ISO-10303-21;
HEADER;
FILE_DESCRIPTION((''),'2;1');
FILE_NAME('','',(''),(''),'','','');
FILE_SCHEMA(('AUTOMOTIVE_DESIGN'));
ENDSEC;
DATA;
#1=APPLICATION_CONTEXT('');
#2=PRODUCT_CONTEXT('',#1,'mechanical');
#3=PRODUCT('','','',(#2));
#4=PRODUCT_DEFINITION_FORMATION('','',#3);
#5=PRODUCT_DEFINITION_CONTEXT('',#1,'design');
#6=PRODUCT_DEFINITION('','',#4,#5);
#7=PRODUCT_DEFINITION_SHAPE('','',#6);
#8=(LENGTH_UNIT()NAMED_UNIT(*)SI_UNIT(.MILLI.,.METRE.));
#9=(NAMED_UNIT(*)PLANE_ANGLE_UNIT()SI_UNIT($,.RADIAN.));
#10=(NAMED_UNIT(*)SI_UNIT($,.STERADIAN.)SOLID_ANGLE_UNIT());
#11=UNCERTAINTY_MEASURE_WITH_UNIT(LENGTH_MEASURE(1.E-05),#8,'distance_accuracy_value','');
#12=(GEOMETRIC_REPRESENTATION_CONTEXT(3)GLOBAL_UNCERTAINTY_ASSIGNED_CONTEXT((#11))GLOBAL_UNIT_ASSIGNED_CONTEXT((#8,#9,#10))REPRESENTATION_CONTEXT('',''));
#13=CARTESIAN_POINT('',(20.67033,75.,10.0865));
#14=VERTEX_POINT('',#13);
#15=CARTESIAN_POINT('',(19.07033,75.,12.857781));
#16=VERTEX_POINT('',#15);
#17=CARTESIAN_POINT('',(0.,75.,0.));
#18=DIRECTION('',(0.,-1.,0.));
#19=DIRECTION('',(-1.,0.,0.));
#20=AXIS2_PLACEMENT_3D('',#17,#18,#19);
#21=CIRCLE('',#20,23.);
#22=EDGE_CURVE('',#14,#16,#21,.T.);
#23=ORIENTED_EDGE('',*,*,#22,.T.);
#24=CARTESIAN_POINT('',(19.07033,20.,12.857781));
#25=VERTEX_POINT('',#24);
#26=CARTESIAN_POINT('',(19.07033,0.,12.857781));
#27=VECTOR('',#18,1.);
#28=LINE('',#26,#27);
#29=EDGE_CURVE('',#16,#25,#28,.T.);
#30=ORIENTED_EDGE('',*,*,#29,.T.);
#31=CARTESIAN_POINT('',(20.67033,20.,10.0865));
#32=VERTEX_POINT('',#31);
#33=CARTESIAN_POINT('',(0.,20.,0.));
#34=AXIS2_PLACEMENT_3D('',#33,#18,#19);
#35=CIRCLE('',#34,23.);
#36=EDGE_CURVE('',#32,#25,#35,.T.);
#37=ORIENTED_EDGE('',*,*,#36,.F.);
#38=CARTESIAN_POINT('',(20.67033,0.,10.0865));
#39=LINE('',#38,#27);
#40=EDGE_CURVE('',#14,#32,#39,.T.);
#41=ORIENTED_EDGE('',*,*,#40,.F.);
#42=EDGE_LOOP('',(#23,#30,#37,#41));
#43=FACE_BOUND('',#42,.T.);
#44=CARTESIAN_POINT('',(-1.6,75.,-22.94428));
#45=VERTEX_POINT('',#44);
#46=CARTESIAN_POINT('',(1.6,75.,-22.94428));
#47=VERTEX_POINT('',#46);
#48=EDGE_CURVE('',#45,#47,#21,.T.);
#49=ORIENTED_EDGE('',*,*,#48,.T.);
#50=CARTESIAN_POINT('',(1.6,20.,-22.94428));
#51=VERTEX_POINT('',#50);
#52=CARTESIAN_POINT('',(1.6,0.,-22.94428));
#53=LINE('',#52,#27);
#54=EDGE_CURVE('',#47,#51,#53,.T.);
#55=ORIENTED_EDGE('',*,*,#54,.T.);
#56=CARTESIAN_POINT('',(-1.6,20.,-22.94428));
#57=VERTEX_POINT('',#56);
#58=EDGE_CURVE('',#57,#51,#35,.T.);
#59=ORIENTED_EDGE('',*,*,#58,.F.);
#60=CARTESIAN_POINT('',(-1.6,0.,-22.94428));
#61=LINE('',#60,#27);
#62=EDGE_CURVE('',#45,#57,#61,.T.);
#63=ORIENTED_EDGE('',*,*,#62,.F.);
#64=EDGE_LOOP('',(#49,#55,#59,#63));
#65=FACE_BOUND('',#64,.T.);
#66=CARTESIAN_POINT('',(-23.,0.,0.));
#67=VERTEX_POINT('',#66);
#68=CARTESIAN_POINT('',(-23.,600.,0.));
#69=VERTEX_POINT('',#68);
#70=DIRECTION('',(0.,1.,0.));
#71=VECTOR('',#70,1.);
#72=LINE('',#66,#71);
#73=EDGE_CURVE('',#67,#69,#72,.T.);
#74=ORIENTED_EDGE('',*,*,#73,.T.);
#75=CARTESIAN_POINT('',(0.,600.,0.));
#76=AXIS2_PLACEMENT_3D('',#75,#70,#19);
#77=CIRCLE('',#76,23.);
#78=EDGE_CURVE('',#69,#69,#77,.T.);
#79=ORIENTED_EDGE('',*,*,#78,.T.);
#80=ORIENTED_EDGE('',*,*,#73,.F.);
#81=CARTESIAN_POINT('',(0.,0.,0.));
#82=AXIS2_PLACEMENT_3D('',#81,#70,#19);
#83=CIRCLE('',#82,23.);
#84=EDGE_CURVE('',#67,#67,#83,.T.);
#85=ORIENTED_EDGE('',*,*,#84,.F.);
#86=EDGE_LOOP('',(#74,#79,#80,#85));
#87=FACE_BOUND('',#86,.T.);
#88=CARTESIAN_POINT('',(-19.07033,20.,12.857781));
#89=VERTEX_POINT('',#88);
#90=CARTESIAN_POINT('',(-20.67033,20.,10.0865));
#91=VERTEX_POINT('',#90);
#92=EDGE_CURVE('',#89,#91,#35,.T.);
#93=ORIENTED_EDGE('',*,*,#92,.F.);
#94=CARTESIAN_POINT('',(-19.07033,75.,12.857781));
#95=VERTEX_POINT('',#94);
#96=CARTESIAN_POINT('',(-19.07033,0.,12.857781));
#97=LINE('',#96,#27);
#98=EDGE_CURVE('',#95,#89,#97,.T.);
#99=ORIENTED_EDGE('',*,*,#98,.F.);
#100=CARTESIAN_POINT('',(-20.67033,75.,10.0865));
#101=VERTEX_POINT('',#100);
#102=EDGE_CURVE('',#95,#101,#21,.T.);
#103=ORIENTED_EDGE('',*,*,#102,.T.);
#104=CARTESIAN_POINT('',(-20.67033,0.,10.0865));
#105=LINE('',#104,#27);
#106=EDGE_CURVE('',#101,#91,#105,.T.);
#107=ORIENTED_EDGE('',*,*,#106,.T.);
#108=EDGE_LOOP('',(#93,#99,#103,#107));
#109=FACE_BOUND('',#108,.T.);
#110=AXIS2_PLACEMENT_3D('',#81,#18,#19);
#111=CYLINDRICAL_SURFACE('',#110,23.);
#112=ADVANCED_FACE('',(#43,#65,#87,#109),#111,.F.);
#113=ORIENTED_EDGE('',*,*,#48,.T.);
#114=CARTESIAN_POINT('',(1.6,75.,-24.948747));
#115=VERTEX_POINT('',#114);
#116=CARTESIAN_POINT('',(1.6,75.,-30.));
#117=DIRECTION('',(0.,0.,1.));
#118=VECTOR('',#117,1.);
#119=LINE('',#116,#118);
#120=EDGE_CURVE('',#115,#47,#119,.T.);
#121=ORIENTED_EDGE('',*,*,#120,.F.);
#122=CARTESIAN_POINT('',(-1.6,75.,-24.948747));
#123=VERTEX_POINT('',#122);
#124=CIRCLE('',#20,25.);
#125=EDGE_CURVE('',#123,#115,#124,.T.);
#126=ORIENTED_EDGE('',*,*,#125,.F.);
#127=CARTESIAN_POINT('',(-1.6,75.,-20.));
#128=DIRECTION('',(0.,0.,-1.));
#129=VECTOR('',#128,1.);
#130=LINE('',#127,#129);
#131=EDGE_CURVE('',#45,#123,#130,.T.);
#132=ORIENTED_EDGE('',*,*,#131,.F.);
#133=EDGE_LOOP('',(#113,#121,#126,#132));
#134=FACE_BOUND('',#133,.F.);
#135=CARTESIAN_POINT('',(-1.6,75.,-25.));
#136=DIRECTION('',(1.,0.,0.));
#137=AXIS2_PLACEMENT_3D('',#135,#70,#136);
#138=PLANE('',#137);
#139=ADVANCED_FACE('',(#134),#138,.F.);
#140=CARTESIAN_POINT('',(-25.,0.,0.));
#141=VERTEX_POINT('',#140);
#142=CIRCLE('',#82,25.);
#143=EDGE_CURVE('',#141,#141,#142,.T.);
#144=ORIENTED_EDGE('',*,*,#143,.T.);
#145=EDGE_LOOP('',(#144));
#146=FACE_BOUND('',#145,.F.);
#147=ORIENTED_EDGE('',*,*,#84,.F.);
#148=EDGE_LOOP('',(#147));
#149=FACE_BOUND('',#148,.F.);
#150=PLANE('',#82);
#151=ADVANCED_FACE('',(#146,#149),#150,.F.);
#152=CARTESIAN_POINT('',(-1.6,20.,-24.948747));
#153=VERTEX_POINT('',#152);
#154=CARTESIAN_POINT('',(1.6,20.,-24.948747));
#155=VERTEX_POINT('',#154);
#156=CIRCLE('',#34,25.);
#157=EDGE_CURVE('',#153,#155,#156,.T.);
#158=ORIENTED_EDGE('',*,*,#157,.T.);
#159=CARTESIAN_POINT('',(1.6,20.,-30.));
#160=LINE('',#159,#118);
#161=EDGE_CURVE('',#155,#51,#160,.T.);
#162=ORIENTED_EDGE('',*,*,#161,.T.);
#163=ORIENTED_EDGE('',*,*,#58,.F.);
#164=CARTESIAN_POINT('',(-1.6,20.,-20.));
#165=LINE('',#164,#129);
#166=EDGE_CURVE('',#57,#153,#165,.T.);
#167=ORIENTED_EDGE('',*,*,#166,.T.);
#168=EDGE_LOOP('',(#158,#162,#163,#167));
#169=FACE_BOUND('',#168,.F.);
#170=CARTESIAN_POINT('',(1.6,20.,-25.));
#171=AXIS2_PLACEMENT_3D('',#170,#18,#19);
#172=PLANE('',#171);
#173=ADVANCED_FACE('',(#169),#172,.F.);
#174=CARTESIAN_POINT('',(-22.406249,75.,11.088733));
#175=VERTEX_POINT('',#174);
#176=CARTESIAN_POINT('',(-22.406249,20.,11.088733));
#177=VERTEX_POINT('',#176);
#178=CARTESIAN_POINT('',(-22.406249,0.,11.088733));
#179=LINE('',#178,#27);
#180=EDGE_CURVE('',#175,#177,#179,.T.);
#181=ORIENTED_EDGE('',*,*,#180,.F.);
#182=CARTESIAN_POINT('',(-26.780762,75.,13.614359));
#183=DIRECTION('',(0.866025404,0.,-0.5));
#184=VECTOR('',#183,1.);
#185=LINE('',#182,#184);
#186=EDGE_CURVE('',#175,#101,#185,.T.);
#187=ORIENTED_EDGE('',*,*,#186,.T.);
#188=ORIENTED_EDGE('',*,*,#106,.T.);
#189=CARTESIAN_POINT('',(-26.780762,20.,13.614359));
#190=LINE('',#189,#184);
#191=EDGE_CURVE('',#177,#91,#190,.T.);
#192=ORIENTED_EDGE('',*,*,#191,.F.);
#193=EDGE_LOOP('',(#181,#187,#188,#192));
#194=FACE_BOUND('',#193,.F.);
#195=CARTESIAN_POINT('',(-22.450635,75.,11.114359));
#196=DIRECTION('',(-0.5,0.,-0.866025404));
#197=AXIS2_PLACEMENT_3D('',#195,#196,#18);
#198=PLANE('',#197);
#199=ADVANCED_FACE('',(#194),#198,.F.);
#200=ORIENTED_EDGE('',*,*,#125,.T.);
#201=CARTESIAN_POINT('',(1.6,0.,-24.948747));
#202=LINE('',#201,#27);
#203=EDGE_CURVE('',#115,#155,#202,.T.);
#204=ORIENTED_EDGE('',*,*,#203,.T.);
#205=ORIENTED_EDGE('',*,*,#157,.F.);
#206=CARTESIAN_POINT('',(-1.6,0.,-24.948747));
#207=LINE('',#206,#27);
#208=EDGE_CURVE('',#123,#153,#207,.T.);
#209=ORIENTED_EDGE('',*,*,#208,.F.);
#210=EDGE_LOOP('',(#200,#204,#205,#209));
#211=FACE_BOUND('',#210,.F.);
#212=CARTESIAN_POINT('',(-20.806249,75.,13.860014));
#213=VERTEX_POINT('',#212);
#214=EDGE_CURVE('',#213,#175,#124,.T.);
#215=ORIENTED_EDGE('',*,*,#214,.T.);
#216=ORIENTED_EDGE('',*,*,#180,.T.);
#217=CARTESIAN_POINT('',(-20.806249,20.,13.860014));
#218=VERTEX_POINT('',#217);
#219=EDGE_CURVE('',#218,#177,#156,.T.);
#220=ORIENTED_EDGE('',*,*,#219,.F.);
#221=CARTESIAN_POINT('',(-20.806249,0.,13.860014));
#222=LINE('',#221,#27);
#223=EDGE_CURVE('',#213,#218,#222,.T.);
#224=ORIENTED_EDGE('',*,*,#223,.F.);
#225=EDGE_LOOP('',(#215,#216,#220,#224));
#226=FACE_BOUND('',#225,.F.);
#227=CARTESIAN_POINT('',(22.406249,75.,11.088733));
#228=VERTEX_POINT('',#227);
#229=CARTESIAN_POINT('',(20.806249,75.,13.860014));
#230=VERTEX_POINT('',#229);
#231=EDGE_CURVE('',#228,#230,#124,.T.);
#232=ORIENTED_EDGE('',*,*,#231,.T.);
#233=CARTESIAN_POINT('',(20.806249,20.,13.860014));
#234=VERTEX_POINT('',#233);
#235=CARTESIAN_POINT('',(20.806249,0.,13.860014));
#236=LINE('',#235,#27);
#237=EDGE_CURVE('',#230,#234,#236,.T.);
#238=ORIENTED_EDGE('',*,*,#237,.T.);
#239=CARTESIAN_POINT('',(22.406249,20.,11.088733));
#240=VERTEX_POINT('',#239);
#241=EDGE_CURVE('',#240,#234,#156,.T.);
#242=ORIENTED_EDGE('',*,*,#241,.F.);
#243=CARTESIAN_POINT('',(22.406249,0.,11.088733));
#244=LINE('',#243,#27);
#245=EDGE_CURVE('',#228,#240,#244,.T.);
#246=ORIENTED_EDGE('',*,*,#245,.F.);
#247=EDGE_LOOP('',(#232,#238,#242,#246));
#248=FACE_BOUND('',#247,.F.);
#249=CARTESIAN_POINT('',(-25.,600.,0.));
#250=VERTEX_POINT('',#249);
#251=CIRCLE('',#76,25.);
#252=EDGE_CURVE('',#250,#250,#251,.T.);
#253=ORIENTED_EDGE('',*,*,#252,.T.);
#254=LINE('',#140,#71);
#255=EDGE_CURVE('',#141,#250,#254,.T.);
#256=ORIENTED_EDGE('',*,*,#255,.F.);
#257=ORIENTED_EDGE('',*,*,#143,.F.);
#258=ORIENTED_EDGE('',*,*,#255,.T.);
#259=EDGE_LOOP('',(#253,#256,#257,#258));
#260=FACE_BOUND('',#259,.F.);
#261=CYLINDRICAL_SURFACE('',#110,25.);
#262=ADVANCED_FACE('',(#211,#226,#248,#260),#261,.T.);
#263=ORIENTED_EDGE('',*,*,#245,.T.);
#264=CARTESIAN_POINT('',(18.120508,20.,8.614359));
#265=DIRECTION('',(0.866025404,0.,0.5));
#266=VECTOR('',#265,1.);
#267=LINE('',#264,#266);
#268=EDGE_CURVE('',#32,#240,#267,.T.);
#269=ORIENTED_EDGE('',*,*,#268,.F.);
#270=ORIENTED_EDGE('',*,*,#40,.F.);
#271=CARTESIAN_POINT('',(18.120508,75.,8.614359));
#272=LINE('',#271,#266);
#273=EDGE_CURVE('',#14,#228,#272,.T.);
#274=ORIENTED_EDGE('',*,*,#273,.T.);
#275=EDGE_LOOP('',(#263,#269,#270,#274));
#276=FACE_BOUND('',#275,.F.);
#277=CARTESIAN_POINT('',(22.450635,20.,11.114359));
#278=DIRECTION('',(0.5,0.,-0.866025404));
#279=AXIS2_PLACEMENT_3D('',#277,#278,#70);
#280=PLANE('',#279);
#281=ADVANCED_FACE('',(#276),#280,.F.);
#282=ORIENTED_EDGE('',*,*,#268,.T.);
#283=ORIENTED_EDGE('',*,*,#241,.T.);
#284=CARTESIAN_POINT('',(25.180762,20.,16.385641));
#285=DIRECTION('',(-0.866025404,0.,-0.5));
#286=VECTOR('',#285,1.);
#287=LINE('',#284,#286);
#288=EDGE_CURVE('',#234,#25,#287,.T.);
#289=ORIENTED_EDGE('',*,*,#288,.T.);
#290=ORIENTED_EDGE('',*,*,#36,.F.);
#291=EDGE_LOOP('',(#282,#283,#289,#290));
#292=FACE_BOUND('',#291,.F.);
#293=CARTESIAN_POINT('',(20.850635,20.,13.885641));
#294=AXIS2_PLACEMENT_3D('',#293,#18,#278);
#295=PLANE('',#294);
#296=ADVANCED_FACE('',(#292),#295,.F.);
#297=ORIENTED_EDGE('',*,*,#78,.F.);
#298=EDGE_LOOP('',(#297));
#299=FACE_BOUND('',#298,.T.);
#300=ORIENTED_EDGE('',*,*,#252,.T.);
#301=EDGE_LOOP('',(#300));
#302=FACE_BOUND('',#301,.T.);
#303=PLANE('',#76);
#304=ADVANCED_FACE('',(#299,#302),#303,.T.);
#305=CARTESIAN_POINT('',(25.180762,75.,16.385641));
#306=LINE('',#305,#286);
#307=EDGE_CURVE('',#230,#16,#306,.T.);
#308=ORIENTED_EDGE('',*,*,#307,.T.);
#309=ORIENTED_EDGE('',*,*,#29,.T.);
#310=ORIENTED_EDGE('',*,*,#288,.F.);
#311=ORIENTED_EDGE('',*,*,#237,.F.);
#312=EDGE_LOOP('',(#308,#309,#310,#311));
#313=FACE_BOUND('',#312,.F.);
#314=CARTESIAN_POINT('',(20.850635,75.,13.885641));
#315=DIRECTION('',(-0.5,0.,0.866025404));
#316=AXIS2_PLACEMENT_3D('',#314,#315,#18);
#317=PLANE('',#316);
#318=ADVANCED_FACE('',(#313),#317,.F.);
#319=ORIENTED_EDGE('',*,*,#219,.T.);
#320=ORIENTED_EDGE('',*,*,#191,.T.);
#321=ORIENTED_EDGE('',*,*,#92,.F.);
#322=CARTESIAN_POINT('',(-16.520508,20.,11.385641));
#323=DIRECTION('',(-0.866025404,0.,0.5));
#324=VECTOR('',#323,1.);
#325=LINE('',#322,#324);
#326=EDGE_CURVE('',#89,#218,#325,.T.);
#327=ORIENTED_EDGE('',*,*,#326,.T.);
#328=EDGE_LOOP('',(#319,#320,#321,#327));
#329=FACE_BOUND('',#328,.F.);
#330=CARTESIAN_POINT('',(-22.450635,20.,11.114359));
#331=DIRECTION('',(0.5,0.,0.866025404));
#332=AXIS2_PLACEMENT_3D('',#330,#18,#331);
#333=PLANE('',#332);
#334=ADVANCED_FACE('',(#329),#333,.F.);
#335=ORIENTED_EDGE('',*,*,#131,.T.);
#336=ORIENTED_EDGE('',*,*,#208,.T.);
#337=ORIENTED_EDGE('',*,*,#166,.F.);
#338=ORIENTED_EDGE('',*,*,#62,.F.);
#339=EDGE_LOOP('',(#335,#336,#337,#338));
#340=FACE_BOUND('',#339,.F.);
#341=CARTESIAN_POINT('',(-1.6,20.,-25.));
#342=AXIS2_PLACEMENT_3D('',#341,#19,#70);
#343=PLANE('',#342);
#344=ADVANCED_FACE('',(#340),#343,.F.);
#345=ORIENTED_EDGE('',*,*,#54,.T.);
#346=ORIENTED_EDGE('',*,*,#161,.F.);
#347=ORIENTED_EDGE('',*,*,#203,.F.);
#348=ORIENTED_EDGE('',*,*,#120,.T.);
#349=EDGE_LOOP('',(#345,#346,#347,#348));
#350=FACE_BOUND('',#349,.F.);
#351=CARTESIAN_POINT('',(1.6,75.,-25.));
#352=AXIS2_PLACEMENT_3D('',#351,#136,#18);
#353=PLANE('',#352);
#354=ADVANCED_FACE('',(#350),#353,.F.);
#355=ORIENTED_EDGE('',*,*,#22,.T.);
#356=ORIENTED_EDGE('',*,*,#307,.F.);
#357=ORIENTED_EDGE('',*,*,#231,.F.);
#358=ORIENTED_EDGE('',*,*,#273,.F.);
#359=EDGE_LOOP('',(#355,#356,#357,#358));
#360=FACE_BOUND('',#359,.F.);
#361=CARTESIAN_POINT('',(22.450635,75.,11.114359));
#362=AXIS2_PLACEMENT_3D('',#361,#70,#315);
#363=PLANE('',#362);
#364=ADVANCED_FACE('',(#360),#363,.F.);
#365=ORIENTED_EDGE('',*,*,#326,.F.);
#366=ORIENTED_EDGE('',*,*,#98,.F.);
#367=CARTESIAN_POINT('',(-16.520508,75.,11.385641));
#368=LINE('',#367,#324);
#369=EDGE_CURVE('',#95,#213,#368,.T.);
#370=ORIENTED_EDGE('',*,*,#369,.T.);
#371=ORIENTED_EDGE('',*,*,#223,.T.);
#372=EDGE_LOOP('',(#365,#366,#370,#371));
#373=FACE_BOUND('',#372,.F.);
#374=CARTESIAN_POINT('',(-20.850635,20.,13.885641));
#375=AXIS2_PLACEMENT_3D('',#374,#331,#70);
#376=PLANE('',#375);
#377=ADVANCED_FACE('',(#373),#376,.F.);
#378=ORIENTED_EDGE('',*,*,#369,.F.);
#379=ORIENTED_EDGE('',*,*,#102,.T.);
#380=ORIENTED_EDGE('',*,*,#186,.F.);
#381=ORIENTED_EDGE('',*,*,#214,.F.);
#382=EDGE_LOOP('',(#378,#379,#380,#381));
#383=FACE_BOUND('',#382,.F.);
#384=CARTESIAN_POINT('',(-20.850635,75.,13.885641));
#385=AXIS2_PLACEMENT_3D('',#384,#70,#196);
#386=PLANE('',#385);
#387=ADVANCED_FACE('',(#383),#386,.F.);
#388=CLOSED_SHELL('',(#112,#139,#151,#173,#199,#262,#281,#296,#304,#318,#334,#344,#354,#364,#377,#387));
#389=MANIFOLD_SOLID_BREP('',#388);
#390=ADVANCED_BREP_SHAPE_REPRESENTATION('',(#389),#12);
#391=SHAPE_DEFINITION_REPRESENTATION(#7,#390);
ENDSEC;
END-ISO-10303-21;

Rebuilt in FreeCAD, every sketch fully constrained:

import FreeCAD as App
import Part
import Sketcher
Q = App.Units.Quantity


def add_polygon(sketch, points):
    """Adds a closed chain of lines whose ends are joined by coincident constraints."""
    first, n = sketch.GeometryCount, len(points)
    for a, b in zip(points, points[1:] + points[:1]):
        sketch.addGeometry(Part.LineSegment(App.Vector(*a, 0), App.Vector(*b, 0)), False)
    for i in range(n):
        sketch.addConstraint(Sketcher.Constraint("Coincident", first + i, 2, first + (i + 1) % n, 1))

doc = App.newDocument("Part")
body = doc.addObject("PartDesign::Body", "Body")

# Sketch on XZ plane
sketch1 = body.newObject("Sketcher::SketchObject", "Sketch")
sketch1.AttachmentSupport = (doc.getObject("XZ_Plane"), [""])
sketch1.MapMode = "FlatFace"
sketch1.addGeometry([
    Part.Circle(App.Vector(0, 0, 0), App.Vector(0, 0, 1), 25),
    Part.Circle(App.Vector(0, 0, 0), App.Vector(0, 0, 1), 23),
], False)
sketch1.addConstraint([
    Sketcher.Constraint("Coincident", 0, 3, -1, 1),
    Sketcher.Constraint("Coincident", 1, 3, -1, 1),
    Sketcher.Constraint("Diameter", 0, Q("50 mm")),
    Sketcher.Constraint("Diameter", 1, Q("46 mm")),
])
pad1 = body.newObject("PartDesign::Pad", "Pad")
pad1.Profile = sketch1
pad1.Length = 600
pad1.Reversed = True

# Sketch on XY plane
sketch2 = body.newObject("Sketcher::SketchObject", "Sketch001")
sketch2.AttachmentSupport = (doc.getObject("XY_Plane"), [""])
sketch2.MapMode = "FlatFace"
sketch2.AttachmentOffset = App.Placement(App.Vector(0, 0, -25), App.Rotation())
add_polygon(sketch2, [(-1.6, 20), (1.6, 20), (1.6, 75), (-1.6, 75)])  # lines 0-3
sketch2.addConstraint([
    Sketcher.Constraint("Horizontal", 0),
    Sketcher.Constraint("Vertical", 1),
    Sketcher.Constraint("Horizontal", 2),
    Sketcher.Constraint("Vertical", 3),
    Sketcher.Constraint("DistanceY", 1, 1, 1, 2, Q("55 mm")),
    Sketcher.Constraint("DistanceX", 0, 1, 0, 2, Q("3.2 mm")),
    Sketcher.Constraint("DistanceY", -1, 1, 0, 2, Q("20 mm")),
    Sketcher.Constraint("DistanceX", -1, 1, 0, 2, Q("1.6 mm")),
])
pocket1 = body.newObject("PartDesign::Pocket", "Pocket")
pocket1.Profile = sketch2
pocket1.Length = 10
pocket1.Midplane = True
doc.recompute()

polarpattern = body.newObject("PartDesign::PolarPattern", "PolarPattern")
polarpattern.Originals = [pocket1]
polarpattern.Axis = (doc.getObject("Y_Axis"), [""])
polarpattern.Angle = 360
polarpattern.Occurrences = 3
body.Tip = polarpattern

doc.recompute()
